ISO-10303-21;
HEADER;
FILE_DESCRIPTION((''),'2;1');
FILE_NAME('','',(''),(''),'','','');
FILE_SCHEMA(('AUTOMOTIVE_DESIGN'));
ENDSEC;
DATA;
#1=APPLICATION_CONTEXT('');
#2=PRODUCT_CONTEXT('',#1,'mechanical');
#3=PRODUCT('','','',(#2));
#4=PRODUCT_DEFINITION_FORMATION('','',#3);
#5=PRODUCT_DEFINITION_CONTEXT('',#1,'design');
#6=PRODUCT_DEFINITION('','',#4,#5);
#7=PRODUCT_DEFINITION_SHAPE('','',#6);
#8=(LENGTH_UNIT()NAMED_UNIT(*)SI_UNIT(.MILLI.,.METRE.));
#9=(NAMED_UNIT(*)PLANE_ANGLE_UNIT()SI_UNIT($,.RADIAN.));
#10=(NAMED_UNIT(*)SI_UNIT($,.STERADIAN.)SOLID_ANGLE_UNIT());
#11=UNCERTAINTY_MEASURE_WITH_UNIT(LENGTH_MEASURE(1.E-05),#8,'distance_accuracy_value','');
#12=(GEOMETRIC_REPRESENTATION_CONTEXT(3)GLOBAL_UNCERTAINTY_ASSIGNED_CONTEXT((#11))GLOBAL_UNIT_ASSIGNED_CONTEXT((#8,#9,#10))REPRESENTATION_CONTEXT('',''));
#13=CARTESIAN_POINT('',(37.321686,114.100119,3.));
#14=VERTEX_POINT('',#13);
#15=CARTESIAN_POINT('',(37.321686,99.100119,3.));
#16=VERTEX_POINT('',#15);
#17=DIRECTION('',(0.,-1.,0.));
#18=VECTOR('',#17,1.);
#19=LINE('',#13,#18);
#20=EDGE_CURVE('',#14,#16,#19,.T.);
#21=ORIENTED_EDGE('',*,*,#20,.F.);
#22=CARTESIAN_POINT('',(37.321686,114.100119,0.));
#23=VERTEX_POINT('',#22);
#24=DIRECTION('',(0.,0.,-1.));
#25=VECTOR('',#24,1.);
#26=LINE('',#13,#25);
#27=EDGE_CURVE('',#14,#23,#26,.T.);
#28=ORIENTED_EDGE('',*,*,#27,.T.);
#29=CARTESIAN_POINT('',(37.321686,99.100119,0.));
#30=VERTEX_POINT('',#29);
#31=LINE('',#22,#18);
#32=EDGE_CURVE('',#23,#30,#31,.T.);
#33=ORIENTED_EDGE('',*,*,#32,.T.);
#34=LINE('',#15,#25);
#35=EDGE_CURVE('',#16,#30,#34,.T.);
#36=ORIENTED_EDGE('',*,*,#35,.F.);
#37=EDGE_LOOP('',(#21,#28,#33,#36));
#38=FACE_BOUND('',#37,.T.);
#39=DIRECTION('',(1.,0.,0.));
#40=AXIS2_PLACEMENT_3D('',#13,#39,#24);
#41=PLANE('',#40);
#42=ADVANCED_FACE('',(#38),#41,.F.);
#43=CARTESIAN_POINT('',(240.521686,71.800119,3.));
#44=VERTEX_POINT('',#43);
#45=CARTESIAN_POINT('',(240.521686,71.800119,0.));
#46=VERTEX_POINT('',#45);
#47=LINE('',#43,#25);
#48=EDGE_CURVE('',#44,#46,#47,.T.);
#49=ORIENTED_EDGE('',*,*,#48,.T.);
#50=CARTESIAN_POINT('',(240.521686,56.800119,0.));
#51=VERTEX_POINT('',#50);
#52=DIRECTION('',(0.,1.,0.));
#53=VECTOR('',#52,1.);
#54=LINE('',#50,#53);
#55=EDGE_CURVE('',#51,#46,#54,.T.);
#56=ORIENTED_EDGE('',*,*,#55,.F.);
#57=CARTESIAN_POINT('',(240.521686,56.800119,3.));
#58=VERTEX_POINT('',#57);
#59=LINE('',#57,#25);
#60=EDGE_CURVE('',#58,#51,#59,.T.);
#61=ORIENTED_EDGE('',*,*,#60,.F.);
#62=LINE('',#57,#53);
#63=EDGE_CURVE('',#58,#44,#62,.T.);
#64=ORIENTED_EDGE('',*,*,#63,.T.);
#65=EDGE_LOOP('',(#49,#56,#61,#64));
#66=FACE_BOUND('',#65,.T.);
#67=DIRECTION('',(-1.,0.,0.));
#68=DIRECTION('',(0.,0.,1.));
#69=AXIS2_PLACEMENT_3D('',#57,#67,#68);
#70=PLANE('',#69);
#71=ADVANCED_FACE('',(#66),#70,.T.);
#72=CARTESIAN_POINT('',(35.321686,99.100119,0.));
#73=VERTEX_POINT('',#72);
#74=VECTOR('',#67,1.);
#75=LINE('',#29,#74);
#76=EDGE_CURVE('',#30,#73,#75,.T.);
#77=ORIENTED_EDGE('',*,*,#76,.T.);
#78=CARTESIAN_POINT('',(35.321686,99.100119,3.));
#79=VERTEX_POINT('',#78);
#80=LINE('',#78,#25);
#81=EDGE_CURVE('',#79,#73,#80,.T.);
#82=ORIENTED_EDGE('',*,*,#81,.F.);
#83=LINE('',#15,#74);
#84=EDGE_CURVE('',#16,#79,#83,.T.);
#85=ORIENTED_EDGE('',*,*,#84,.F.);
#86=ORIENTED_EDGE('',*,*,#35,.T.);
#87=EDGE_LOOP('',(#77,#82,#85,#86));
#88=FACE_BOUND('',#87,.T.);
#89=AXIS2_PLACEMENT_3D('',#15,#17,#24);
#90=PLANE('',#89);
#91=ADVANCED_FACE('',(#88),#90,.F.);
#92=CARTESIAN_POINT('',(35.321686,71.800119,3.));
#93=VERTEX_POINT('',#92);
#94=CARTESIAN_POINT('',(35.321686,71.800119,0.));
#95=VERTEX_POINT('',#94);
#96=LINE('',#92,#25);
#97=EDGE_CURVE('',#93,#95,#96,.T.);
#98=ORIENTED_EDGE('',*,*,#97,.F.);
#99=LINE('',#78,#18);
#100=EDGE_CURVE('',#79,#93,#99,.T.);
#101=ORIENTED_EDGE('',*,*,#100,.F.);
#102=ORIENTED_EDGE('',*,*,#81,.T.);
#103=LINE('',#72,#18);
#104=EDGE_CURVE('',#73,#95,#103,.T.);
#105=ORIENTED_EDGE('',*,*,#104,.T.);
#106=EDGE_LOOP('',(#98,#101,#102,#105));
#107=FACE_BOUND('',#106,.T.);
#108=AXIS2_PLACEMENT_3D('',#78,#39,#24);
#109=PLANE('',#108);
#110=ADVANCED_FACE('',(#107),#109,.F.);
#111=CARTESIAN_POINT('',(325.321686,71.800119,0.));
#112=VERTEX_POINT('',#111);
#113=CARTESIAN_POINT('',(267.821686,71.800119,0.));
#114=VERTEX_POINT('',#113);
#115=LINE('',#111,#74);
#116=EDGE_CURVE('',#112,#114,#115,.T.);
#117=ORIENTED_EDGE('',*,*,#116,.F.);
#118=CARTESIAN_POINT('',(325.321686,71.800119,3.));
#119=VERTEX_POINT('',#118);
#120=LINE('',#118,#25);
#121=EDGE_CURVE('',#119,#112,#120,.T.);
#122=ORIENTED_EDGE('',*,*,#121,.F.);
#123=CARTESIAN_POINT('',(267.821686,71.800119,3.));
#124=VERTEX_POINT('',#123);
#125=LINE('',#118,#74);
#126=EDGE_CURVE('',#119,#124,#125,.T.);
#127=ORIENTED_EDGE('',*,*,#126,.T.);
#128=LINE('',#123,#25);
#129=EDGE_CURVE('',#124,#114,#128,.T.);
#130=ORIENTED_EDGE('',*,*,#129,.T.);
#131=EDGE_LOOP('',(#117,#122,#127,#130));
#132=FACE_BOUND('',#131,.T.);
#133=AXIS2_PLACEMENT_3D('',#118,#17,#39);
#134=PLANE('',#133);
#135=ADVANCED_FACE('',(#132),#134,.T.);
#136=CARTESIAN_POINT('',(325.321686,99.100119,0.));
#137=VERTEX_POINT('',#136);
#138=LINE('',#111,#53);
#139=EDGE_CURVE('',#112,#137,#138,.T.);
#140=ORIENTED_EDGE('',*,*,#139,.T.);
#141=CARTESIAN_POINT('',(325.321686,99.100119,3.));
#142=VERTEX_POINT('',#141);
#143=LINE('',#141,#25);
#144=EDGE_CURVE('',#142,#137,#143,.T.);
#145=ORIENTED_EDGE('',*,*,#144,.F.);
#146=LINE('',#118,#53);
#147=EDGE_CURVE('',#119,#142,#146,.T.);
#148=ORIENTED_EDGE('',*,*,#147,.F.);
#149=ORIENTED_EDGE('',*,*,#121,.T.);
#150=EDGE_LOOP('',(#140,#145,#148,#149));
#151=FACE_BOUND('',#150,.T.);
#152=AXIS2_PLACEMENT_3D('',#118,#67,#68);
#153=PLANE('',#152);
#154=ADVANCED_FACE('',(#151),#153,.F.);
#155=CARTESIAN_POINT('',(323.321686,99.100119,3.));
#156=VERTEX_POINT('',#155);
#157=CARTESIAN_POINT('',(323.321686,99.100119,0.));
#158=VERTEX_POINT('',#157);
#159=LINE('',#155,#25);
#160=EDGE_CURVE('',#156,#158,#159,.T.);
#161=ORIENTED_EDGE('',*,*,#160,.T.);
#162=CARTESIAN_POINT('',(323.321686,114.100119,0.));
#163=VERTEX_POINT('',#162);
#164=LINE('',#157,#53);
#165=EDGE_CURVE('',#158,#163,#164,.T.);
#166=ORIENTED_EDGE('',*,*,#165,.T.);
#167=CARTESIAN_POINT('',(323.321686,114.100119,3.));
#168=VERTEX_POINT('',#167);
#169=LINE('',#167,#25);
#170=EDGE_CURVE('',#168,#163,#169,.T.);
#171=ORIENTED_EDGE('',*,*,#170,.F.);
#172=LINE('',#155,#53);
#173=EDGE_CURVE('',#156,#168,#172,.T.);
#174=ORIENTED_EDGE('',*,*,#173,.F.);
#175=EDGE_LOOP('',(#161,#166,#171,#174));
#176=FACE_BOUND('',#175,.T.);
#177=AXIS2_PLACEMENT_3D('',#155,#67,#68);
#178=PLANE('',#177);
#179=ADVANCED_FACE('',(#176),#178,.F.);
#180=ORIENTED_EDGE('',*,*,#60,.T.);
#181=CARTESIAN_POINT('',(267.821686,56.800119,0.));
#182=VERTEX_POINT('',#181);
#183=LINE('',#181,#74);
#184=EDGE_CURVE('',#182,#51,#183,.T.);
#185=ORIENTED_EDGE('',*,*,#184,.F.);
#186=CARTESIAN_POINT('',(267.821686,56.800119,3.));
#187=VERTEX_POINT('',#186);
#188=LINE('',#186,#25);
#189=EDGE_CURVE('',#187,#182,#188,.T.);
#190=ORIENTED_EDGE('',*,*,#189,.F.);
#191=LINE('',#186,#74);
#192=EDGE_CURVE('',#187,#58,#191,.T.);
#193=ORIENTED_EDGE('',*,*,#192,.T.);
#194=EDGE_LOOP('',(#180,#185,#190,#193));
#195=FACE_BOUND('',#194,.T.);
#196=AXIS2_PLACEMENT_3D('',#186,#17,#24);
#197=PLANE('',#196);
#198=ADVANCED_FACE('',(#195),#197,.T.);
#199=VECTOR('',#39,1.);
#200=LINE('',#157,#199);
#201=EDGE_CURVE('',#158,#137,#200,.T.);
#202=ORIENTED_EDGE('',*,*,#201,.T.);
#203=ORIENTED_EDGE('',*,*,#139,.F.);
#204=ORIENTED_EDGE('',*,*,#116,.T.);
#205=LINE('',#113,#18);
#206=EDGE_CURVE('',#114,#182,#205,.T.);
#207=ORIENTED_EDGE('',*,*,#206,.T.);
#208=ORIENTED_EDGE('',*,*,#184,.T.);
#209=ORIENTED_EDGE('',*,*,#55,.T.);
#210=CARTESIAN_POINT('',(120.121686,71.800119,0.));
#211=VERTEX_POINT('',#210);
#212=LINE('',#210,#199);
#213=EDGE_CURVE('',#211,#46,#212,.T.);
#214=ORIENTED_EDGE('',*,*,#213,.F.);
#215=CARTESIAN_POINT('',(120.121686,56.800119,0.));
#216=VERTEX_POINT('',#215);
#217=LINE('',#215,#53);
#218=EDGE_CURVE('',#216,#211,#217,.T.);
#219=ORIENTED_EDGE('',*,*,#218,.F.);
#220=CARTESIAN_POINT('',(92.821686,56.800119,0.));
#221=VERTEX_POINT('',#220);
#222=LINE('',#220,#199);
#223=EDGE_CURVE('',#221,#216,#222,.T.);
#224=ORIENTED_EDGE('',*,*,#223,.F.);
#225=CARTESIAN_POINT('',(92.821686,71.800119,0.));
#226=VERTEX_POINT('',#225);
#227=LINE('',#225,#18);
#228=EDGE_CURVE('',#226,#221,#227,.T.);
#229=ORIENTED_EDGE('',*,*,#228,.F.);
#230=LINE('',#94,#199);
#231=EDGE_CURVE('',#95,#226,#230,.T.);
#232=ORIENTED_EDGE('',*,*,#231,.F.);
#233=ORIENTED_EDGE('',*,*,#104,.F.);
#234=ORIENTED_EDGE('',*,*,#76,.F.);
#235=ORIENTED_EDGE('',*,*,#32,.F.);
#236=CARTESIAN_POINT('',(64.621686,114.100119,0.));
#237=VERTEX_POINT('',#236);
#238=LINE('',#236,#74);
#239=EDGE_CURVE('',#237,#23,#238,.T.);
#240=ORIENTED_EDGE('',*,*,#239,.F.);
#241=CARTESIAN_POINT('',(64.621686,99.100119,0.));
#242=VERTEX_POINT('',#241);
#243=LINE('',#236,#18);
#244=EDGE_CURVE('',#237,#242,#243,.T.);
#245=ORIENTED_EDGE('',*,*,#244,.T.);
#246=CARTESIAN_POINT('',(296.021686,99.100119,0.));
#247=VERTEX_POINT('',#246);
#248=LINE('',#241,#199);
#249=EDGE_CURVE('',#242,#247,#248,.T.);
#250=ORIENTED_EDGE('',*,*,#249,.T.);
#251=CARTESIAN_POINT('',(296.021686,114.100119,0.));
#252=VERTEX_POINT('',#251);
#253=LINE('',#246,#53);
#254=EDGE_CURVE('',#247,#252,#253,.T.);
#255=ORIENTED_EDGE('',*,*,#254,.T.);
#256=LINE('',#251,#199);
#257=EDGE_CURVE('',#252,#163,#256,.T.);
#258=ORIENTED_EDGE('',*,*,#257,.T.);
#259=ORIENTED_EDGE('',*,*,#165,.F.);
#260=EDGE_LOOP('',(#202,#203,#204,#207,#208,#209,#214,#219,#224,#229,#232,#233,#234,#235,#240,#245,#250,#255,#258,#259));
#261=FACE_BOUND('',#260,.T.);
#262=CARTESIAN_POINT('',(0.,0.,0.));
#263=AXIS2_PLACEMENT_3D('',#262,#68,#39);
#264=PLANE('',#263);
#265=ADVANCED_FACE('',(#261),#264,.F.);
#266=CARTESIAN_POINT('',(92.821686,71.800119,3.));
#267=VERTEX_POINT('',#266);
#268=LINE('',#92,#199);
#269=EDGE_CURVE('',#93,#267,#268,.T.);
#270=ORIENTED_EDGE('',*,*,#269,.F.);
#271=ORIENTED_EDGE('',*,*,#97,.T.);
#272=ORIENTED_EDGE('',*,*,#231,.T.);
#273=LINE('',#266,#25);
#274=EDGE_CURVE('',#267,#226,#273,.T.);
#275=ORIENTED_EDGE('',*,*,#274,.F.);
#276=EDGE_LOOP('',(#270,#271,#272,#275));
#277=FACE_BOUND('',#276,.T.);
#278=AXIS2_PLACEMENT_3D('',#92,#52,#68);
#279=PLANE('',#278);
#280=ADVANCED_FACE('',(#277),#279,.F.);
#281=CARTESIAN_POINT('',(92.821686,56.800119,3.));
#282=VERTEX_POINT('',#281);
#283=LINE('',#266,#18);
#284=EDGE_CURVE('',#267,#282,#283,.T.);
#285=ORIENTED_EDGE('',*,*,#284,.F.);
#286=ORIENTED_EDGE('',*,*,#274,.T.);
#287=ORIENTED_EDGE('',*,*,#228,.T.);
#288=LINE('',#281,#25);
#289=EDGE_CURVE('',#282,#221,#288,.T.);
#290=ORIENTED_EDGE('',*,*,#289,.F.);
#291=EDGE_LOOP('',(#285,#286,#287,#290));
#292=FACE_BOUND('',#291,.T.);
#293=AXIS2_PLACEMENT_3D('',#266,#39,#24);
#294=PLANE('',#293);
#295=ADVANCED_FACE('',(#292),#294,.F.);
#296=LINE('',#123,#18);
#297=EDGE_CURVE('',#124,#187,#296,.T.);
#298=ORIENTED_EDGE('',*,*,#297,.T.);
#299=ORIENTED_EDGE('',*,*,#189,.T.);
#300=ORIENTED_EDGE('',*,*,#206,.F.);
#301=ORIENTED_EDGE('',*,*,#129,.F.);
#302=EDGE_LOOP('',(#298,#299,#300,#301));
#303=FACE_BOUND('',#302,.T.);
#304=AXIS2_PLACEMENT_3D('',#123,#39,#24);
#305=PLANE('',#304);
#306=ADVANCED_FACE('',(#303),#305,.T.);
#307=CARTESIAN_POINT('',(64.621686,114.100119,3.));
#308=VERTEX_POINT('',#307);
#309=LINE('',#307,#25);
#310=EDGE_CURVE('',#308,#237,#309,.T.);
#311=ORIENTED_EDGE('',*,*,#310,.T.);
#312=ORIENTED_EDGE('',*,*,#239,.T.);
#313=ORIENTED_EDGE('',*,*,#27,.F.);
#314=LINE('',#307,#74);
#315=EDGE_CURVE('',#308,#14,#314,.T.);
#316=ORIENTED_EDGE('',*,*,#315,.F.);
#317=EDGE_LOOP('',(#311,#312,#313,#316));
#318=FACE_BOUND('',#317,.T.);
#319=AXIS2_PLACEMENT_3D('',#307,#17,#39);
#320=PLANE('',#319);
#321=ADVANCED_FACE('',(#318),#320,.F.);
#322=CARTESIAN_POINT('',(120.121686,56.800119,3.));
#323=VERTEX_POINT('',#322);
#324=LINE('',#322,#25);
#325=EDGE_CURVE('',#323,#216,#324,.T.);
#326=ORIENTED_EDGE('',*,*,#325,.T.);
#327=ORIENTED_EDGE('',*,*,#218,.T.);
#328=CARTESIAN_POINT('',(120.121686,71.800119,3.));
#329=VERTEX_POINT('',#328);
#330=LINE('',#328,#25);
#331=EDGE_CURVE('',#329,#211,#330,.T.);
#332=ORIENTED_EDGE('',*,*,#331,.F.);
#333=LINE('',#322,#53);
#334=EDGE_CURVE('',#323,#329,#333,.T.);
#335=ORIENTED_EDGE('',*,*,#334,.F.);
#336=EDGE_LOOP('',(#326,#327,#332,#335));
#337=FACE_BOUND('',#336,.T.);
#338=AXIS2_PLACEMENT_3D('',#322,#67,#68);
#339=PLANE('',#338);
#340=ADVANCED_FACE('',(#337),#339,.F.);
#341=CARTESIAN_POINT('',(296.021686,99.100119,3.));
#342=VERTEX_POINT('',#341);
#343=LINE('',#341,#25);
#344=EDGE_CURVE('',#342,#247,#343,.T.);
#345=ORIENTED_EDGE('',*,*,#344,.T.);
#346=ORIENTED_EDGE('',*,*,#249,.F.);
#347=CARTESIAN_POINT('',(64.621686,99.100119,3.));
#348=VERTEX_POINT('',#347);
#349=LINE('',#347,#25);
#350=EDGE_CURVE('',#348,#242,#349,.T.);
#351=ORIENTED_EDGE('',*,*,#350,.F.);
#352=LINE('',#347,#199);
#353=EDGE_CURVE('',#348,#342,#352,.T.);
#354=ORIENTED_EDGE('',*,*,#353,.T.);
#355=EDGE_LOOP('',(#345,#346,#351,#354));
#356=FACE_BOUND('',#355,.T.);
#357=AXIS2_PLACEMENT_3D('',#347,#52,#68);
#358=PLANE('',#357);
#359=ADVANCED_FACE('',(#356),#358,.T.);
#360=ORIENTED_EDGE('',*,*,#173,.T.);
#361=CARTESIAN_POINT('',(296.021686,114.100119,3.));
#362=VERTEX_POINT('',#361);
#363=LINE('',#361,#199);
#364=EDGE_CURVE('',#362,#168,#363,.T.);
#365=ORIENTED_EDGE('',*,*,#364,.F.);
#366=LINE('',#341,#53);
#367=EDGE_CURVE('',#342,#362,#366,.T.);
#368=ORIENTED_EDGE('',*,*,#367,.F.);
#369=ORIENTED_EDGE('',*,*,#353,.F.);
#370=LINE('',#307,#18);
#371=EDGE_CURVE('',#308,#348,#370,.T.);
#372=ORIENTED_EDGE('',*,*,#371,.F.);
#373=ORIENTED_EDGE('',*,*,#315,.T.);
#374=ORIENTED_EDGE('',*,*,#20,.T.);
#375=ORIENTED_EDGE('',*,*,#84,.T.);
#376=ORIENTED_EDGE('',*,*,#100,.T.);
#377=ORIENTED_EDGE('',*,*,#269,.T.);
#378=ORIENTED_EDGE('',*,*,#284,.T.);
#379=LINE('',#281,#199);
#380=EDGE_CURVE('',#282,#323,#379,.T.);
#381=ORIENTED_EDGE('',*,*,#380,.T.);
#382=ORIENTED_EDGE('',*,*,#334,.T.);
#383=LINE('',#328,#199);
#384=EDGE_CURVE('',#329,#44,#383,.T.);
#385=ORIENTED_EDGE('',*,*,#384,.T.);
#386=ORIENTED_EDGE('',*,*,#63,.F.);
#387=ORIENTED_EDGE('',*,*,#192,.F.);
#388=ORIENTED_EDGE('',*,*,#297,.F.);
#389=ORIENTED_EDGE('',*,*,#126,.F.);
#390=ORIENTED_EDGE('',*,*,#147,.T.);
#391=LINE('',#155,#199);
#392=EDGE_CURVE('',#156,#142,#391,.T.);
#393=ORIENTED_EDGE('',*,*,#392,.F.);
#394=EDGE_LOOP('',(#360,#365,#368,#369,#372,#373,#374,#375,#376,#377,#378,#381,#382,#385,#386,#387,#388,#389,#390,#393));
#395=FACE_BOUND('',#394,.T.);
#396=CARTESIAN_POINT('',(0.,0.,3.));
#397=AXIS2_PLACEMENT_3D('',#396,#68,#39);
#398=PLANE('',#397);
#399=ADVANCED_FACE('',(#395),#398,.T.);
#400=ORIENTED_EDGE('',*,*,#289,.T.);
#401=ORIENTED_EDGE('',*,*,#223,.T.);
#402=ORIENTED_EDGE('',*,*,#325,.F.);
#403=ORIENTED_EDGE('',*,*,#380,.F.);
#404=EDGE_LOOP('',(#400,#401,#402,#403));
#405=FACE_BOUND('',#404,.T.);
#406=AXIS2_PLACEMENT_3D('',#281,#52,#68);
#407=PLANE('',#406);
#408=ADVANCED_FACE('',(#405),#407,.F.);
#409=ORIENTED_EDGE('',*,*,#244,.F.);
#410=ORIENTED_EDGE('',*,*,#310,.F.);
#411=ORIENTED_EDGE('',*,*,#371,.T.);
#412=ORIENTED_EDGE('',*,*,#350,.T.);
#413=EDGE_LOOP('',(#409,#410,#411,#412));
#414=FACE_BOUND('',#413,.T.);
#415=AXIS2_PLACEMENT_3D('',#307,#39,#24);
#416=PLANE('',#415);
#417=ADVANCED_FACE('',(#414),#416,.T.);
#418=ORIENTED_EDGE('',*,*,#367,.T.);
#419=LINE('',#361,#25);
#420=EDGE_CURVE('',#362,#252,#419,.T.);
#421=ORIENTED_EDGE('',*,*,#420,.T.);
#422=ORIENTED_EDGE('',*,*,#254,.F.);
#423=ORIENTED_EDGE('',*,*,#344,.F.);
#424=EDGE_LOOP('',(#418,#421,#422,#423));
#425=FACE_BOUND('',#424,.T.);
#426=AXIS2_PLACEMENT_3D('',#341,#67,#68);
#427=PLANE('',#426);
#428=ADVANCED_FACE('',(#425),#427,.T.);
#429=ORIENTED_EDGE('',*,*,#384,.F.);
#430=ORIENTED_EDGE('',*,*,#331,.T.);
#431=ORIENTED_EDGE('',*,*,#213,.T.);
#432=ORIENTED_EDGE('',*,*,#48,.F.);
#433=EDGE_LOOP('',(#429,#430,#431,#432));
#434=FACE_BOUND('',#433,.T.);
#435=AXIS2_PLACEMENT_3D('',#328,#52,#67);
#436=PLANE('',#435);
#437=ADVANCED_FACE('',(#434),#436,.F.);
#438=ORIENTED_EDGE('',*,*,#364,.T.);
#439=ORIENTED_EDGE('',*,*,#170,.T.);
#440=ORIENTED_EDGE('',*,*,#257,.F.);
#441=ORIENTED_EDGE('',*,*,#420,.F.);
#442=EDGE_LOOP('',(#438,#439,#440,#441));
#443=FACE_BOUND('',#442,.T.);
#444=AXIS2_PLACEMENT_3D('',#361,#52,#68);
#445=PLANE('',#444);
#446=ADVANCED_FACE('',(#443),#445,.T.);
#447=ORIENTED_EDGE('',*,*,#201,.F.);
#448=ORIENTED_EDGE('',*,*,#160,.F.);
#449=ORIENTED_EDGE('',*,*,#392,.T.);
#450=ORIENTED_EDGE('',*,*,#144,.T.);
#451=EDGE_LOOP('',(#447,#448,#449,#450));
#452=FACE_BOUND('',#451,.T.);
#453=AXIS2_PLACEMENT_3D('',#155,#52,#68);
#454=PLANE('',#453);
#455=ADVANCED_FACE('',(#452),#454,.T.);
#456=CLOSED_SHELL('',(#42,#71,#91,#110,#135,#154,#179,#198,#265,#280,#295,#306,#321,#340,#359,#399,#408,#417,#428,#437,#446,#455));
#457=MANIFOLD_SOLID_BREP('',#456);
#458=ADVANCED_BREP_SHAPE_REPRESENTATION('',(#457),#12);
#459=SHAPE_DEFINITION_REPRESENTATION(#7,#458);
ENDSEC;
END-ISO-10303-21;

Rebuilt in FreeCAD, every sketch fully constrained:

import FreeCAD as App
import Part
import Sketcher

V = App.Vector


def add_polygon(sketch, points):
    """Adds a closed chain of lines whose ends are joined by coincident constraints."""
    first, n = sketch.GeometryCount, len(points)
    for a, b in zip(points, points[1:] + points[:1]):
        sketch.addGeometry(Part.LineSegment(App.Vector(*a, 0), App.Vector(*b, 0)), False)
    for i in range(n):
        sketch.addConstraint(Sketcher.Constraint("Coincident", first + i, 2, first + (i + 1) % n, 1))

doc = App.newDocument("Part")
body = doc.addObject("PartDesign::Body", "Body")

# Sketch on XY plane
sketch1 = body.newObject("Sketcher::SketchObject", "Sketch")
sketch1.AttachmentSupport = (doc.getObject("XY_Plane"), [""])
sketch1.MapMode = "FlatFace"
add_polygon(sketch1, [(325.3, 71.8), (325.3, 99.1), (323.3, 99.1), (323.3, 114.1), (296, 114.1), (296, 99.1), (64.6, 99.1), (64.6, 114.1), (37.3, 114.1), (37.3, 99.1), (35.3, 99.1), (35.3, 71.8), (92.8, 71.8), (92.8, 56.8), (120.1, 56.8), (120.1, 71.8), (240.5, 71.8), (240.5, 56.8), (267.8, 56.8), (267.8, 71.8)])  # lines 0-19
sketch1.addConstraint([
    Sketcher.Constraint("Vertical", 0),
    Sketcher.Constraint("Horizontal", 1),
    Sketcher.Constraint("Vertical", 2),
    Sketcher.Constraint("Horizontal", 3),
    Sketcher.Constraint("Vertical", 4),
    Sketcher.Constraint("Horizontal", 5),
    Sketcher.Constraint("Vertical", 6),
    Sketcher.Constraint("Horizontal", 7),
    Sketcher.Constraint("Vertical", 8),
    Sketcher.Constraint("Horizontal", 9),
    Sketcher.Constraint("Vertical", 10),
    Sketcher.Constraint("Horizontal", 11),
    Sketcher.Constraint("Vertical", 12),
    Sketcher.Constraint("Horizontal", 13),
    Sketcher.Constraint("Vertical", 14),
    Sketcher.Constraint("Horizontal", 15),
    Sketcher.Constraint("Vertical", 16),
    Sketcher.Constraint("Horizontal", 17),
    Sketcher.Constraint("Vertical", 18),
    Sketcher.Constraint("Horizontal", 19),
    Sketcher.Constraint("Horizontal", 1, 2, 4, 2),
    Sketcher.Constraint("Horizontal", 3, 2, 6, 2),
    Sketcher.Constraint("Horizontal", 5, 2, 8, 2),
    Sketcher.Constraint("Horizontal", 11, 2, 14, 2),
    Sketcher.Constraint("Horizontal", 13, 2, 16, 2),
    Sketcher.Constraint("Horizontal", 15, 2, 18, 2),
    Sketcher.Constraint("Equal", 3, 7),
    Sketcher.Constraint("Equal", 1, 9),
    Sketcher.Constraint("Equal", 7, 13),
    Sketcher.Constraint("Equal", 13, 17),
    Sketcher.Constraint("Equal", 11, 19),
    Sketcher.Constraint("Equal", 17, 0),
    Sketcher.Constraint("Equal", 8, 12),
    Sketcher.Constraint("DistanceX", 1, 2, 1, 1, 2.0),
    Sketcher.Constraint("DistanceY", 2, 1, 2, 2, 15.0),
    Sketcher.Constraint("DistanceX", 3, 2, 3, 1, 27.3),
    Sketcher.Constraint("DistanceX", 5, 2, 5, 1, 231.4),
    Sketcher.Constraint("DistanceX", 11, 1, 11, 2, 57.5),
    Sketcher.Constraint("DistanceY", -1, 1, 0, 2, 99.100119),
    Sketcher.Constraint("DistanceX", -1, 1, 0, 2, 325.321686),
])
pad1 = body.newObject("PartDesign::Pad", "Pad")
pad1.Profile = sketch1
pad1.Length = 3

doc.recompute()
